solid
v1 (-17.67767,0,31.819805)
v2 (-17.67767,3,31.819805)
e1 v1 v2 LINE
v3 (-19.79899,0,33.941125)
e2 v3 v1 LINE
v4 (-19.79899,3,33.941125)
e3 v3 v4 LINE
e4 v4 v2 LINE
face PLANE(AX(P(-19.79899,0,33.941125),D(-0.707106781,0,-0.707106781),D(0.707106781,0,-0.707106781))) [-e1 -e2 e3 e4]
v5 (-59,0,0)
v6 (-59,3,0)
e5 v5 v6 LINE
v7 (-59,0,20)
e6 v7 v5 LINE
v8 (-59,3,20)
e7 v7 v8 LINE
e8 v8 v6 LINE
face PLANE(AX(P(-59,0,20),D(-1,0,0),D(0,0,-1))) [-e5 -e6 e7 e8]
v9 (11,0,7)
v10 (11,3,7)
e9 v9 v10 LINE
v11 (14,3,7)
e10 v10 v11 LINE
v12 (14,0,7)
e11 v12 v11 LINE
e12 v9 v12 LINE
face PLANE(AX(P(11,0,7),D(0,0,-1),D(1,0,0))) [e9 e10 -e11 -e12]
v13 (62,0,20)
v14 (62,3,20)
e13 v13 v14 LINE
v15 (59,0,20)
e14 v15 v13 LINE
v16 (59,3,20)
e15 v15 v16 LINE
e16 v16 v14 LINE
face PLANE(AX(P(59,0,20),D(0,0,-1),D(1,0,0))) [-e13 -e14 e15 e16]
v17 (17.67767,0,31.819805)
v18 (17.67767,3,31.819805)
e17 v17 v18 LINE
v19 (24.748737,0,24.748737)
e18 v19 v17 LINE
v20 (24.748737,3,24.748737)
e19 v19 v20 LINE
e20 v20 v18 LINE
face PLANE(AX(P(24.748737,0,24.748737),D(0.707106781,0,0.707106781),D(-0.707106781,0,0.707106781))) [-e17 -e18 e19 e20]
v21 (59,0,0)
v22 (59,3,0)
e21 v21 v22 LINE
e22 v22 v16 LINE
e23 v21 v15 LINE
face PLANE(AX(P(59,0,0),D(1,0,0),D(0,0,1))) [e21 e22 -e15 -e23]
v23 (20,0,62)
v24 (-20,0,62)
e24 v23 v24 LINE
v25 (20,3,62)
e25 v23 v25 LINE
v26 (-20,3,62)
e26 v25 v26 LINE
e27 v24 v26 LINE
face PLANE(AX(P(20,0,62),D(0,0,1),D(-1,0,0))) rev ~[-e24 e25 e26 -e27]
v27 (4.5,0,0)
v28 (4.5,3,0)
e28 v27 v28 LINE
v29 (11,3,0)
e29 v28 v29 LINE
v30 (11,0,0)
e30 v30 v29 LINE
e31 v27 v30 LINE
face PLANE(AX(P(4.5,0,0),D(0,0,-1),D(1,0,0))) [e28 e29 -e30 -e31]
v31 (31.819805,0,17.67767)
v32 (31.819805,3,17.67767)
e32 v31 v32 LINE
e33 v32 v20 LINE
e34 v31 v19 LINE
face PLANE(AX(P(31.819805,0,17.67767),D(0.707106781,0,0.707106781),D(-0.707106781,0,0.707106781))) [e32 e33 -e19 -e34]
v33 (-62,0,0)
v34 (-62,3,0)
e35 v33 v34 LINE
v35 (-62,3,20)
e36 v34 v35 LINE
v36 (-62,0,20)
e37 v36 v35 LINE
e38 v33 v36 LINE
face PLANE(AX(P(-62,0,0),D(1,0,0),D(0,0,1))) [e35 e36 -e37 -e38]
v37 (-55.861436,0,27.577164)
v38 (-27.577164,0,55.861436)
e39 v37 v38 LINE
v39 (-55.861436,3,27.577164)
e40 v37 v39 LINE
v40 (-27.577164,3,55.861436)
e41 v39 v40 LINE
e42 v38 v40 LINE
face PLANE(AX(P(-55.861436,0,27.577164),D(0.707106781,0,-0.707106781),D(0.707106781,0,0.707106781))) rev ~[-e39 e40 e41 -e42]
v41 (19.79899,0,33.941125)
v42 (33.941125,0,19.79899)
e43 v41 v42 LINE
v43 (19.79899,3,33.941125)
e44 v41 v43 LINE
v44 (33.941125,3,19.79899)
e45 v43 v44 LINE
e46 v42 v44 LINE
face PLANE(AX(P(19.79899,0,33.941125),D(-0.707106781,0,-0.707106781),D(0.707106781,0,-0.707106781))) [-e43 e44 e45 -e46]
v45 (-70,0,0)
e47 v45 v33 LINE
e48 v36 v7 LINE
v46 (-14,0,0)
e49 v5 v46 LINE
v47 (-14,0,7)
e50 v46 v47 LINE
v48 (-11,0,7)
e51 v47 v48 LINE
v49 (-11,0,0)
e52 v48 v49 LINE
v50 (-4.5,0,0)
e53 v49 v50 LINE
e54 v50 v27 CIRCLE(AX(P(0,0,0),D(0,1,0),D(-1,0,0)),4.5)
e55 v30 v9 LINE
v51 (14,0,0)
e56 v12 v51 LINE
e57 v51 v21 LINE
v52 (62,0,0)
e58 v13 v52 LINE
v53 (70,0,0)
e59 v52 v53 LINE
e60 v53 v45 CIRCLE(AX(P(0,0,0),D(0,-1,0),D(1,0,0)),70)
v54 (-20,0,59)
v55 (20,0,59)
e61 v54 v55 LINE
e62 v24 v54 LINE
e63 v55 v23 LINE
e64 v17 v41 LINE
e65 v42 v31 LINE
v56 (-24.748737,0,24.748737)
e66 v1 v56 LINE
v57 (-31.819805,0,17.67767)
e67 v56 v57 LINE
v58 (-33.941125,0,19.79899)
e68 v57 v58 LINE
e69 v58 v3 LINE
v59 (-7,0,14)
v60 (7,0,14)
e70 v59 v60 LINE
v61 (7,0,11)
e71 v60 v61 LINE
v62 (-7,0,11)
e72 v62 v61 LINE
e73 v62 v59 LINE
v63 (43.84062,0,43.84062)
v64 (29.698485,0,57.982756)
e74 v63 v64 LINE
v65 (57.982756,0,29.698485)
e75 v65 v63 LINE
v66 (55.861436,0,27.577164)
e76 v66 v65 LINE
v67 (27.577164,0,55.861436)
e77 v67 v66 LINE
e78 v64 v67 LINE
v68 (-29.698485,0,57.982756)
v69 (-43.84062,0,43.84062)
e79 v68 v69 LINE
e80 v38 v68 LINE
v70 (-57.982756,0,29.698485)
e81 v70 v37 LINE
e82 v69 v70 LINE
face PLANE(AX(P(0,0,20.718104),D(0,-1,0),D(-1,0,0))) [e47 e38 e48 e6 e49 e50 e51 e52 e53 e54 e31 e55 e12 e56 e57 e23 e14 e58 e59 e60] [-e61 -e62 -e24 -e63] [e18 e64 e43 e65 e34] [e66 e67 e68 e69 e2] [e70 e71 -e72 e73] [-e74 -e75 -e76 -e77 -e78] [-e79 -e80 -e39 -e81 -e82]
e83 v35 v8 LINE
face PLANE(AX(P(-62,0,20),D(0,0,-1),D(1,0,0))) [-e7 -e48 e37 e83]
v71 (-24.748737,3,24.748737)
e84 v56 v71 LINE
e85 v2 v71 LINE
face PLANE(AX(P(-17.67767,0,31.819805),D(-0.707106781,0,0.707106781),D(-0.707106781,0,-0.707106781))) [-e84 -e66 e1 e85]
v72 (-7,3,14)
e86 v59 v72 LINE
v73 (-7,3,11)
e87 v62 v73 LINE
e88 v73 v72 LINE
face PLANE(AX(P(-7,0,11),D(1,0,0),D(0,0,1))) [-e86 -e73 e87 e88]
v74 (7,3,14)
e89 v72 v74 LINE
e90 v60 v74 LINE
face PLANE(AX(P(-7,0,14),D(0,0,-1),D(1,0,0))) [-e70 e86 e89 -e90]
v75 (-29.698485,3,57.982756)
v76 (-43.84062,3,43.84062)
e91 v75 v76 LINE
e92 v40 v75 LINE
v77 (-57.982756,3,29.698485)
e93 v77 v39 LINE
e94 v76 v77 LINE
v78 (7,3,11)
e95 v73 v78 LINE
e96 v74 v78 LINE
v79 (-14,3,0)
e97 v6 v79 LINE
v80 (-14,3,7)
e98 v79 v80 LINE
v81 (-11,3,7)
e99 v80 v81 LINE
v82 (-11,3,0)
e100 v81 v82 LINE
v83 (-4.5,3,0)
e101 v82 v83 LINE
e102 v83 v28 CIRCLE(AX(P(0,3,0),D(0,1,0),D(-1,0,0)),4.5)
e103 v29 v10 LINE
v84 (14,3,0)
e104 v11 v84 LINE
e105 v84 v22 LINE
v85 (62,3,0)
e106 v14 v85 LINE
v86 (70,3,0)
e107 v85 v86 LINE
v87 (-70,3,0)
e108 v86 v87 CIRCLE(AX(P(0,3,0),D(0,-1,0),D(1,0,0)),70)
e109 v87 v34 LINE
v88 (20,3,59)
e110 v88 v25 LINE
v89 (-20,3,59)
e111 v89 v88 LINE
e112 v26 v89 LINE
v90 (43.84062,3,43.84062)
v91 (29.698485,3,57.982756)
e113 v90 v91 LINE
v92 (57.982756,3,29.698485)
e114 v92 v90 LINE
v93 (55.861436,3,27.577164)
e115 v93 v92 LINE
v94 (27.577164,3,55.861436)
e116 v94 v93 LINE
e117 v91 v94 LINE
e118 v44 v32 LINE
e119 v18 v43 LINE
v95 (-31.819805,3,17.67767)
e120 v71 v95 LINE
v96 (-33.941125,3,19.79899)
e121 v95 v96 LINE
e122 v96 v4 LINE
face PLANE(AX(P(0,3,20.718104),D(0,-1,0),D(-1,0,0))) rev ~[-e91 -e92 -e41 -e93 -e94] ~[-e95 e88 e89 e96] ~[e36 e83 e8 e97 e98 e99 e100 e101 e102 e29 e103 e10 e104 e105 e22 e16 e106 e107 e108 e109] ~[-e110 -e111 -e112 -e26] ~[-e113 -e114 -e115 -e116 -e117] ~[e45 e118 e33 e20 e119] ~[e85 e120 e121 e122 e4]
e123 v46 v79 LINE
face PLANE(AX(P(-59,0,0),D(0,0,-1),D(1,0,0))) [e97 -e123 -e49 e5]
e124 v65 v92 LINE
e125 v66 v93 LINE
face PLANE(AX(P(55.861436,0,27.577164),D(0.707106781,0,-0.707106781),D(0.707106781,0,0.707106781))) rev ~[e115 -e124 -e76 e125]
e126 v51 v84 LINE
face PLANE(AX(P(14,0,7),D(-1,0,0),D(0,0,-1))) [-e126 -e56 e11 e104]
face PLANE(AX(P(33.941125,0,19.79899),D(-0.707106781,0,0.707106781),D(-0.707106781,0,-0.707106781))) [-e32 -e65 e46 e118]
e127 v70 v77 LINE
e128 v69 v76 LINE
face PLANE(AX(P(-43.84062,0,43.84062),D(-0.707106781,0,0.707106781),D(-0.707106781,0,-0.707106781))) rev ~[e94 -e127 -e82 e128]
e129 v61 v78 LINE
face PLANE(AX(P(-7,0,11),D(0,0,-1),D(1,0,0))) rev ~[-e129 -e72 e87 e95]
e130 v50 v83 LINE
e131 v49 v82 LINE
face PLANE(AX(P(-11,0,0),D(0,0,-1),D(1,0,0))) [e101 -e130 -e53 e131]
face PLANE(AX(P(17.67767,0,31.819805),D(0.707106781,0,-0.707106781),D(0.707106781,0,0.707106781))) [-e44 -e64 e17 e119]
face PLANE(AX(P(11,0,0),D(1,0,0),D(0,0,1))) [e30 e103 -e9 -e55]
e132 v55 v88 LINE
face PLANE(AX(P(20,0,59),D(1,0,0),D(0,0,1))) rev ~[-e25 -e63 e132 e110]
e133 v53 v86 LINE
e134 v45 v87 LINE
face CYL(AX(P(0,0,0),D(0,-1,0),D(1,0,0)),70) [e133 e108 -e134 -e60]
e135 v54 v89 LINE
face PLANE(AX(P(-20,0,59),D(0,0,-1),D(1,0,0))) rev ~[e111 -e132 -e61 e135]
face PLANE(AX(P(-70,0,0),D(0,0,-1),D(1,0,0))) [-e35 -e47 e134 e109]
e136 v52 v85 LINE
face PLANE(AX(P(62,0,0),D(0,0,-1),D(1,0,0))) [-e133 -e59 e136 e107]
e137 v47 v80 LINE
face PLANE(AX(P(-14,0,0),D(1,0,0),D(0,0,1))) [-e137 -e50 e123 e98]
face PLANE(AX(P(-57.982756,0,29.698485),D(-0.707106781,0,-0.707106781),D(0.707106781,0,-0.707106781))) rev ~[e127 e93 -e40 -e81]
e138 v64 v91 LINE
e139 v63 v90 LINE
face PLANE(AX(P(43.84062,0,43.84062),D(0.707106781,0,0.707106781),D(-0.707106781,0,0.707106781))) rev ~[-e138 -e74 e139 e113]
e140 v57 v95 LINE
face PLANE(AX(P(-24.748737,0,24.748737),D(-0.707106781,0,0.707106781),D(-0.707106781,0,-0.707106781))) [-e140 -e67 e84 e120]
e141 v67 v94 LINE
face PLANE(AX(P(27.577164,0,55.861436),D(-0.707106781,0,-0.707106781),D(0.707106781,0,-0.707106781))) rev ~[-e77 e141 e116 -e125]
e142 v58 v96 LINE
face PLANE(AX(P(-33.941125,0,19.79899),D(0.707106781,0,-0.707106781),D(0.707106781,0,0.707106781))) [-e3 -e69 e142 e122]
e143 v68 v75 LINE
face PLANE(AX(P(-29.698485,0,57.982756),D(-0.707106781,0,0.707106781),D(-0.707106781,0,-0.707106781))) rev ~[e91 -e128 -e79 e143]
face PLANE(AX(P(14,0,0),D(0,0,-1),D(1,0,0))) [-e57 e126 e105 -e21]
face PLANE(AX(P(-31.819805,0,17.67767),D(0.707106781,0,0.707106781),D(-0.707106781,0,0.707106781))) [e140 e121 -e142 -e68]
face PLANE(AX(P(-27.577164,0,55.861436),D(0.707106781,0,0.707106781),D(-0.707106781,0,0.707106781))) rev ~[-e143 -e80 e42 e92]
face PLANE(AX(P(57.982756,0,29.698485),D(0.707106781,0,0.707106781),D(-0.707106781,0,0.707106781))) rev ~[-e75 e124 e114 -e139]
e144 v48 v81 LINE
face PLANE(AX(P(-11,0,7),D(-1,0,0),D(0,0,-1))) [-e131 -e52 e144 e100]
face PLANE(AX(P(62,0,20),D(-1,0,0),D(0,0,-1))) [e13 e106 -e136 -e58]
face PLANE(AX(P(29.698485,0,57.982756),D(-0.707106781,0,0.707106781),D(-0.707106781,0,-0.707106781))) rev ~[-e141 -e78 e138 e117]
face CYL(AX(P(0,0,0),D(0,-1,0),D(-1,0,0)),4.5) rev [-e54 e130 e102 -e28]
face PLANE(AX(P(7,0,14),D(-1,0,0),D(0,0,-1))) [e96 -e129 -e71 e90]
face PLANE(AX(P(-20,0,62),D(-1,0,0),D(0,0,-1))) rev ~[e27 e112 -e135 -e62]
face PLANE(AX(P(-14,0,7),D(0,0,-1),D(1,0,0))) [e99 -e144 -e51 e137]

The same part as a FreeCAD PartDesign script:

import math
import FreeCAD as App
import Part
import Sketcher

V = App.Vector

doc = App.newDocument("Part")
params = doc.addObject("Spreadsheet::Sheet", "Params")
for row, (alias, value) in enumerate([
    ("sketch1_radius", "70 mm"),
    ("sketch1_radius2", "4.5 mm"),
    ("sketch1_width", "45 mm"),
    ("sketch1_width2", "3 mm"),
    ("sketch1_width3", "8 mm"),
    ("pad1_length", "3 mm"),
], start=1):
    params.set(f"A{row}", alias)
    params.set(f"B{row}", "=" + value)
    params.setAlias(f"B{row}", alias)

body = doc.addObject("PartDesign::Body", "Body")

sketch1 = body.newObject("Sketcher::SketchObject", "Sketch")
sketch1.AttachmentSupport = (doc.getObject("XZ_Plane"), [""])
sketch1.MapMode = "FlatFace"
sketch1.addGeometry([
    Part.LineSegment(V(-14, 0, 0), V(-59, 0, 0)),
    Part.LineSegment(V(-59, 0, 0), V(-59, 20, 0)),
    Part.LineSegment(V(-59, 20, 0), V(-62, 20, 0)),
    Part.LineSegment(V(-62, 20, 0), V(-62, 0, 0)),
    Part.LineSegment(V(-62, 0, 0), V(-70, 0, 0)),
    Part.ArcOfCircle(Part.Circle(V(0, 0, 0), V(0, 0, 1), 70), math.radians(0), math.radians(180)),
    Part.LineSegment(V(70, 0, 0), V(62, 0, 0)),
    Part.LineSegment(V(62, 0, 0), V(62, 20, 0)),
    Part.LineSegment(V(62, 20, 0), V(59, 20, 0)),
    Part.LineSegment(V(59, 20, 0), V(59, 0, 0)),
    Part.LineSegment(V(59, 0, 0), V(14, 0, 0)),
    Part.LineSegment(V(14, 0, 0), V(14, 7, 0)),
    Part.LineSegment(V(14, 7, 0), V(11, 7, 0)),
    Part.LineSegment(V(11, 7, 0), V(11, 0, 0)),
    Part.LineSegment(V(11, 0, 0), V(4.5, 0, 0)),
    Part.ArcOfCircle(Part.Circle(V(0, 0, 0), V(0, 0, 1), 4.5), math.radians(0), math.radians(180)),
    Part.LineSegment(V(-4.5, 0, 0), V(-11, 0, 0)),
    Part.LineSegment(V(-11, 0, 0), V(-11, 7, 0)),
    Part.LineSegment(V(-11, 7, 0), V(-14, 7, 0)),
    Part.LineSegment(V(-14, 7, 0), V(-14, 0, 0)),
    Part.LineSegment(V(27.6, 55.9, 0), V(55.9, 27.6, 0)),
    Part.LineSegment(V(55.9, 27.6, 0), V(58, 29.7, 0)),
    Part.LineSegment(V(58, 29.7, 0), V(43.8, 43.8, 0)),
    Part.LineSegment(V(43.8, 43.8, 0), V(29.7, 58, 0)),
    Part.LineSegment(V(29.7, 58, 0), V(27.6, 55.9, 0)),
    Part.LineSegment(V(-20, 59, 0), V(20, 59, 0)),
    Part.LineSegment(V(20, 59, 0), V(20, 62, 0)),
    Part.LineSegment(V(20, 62, 0), V(-20, 62, 0)),
    Part.LineSegment(V(-20, 62, 0), V(-20, 59, 0)),
    Part.LineSegment(V(-55.9, 27.6, 0), V(-27.6, 55.9, 0)),
    Part.LineSegment(V(-27.6, 55.9, 0), V(-29.7, 58, 0)),
    Part.LineSegment(V(-29.7, 58, 0), V(-43.8, 43.8, 0)),
    Part.LineSegment(V(-43.8, 43.8, 0), V(-58, 29.7, 0)),
    Part.LineSegment(V(-58, 29.7, 0), V(-55.9, 27.6, 0)),
    Part.LineSegment(V(24.7, 24.7, 0), V(31.8, 17.7, 0)),
    Part.LineSegment(V(31.8, 17.7, 0), V(33.9, 19.8, 0)),
    Part.LineSegment(V(33.9, 19.8, 0), V(19.8, 33.9, 0)),
    Part.LineSegment(V(19.8, 33.9, 0), V(17.7, 31.8, 0)),
    Part.LineSegment(V(17.7, 31.8, 0), V(24.7, 24.7, 0)),
    Part.LineSegment(V(-24.7, 24.7, 0), V(-17.7, 31.8, 0)),
    Part.LineSegment(V(-17.7, 31.8, 0), V(-19.8, 33.9, 0)),
    Part.LineSegment(V(-19.8, 33.9, 0), V(-33.9, 19.8, 0)),
    Part.LineSegment(V(-33.9, 19.8, 0), V(-31.8, 17.7, 0)),
    Part.LineSegment(V(-31.8, 17.7, 0), V(-24.7, 24.7, 0)),
    Part.LineSegment(V(-7, 14, 0), V(-7, 11, 0)),
    Part.LineSegment(V(-7, 11, 0), V(7, 11, 0)),
    Part.LineSegment(V(7, 11, 0), V(7, 14, 0)),
    Part.LineSegment(V(7, 14, 0), V(-7, 14, 0)),
], False)
sketch1.addConstraint([
    Sketcher.Constraint("Coincident", 0, 2, 1, 1),
    Sketcher.Constraint("Coincident", 1, 2, 2, 1),
    Sketcher.Constraint("Coincident", 2, 2, 3, 1),
    Sketcher.Constraint("Coincident", 3, 2, 4, 1),
    Sketcher.Constraint("Coincident", 4, 2, 5, 2),
    Sketcher.Constraint("Coincident", 5, 1, 6, 1),
    Sketcher.Constraint("Coincident", 6, 2, 7, 1),
    Sketcher.Constraint("Coincident", 7, 2, 8, 1),
    Sketcher.Constraint("Coincident", 8, 2, 9, 1),
    Sketcher.Constraint("Coincident", 9, 2, 10, 1),
    Sketcher.Constraint("Coincident", 10, 2, 11, 1),
    Sketcher.Constraint("Coincident", 11, 2, 12, 1),
    Sketcher.Constraint("Coincident", 12, 2, 13, 1),
    Sketcher.Constraint("Coincident", 13, 2, 14, 1),
    Sketcher.Constraint("Coincident", 14, 2, 15, 1),
    Sketcher.Constraint("Coincident", 15, 2, 16, 1),
    Sketcher.Constraint("Coincident", 16, 2, 17, 1),
    Sketcher.Constraint("Coincident", 17, 2, 18, 1),
    Sketcher.Constraint("Coincident", 18, 2, 19, 1),
    Sketcher.Constraint("Coincident", 19, 2, 0, 1),
    Sketcher.Constraint("Coincident", 20, 2, 21, 1),
    Sketcher.Constraint("Coincident", 21, 2, 22, 1),
    Sketcher.Constraint("Coincident", 22, 2, 23, 1),
    Sketcher.Constraint("Coincident", 23, 2, 24, 1),
    Sketcher.Constraint("Coincident", 24, 2, 20, 1),
    Sketcher.Constraint("Coincident", 25, 2, 26, 1),
    Sketcher.Constraint("Coincident", 26, 2, 27, 1),
    Sketcher.Constraint("Coincident", 27, 2, 28, 1),
    Sketcher.Constraint("Coincident", 28, 2, 25, 1),
    Sketcher.Constraint("Coincident", 29, 2, 30, 1),
    Sketcher.Constraint("Coincident", 30, 2, 31, 1),
    Sketcher.Constraint("Coincident", 31, 2, 32, 1),
    Sketcher.Constraint("Coincident", 32, 2, 33, 1),
    Sketcher.Constraint("Coincident", 33, 2, 29, 1),
    Sketcher.Constraint("Coincident", 34, 2, 35, 1),
    Sketcher.Constraint("Coincident", 35, 2, 36, 1),
    Sketcher.Constraint("Coincident", 36, 2, 37, 1),
    Sketcher.Constraint("Coincident", 37, 2, 38, 1),
    Sketcher.Constraint("Coincident", 38, 2, 34, 1),
    Sketcher.Constraint("Coincident", 39, 2, 40, 1),
    Sketcher.Constraint("Coincident", 40, 2, 41, 1),
    Sketcher.Constraint("Coincident", 41, 2, 42, 1),
    Sketcher.Constraint("Coincident", 42, 2, 43, 1),
    Sketcher.Constraint("Coincident", 43, 2, 39, 1),
    Sketcher.Constraint("Coincident", 44, 2, 45, 1),
    Sketcher.Constraint("Coincident", 45, 2, 46, 1),
    Sketcher.Constraint("Coincident", 46, 2, 47, 1),
    Sketcher.Constraint("Coincident", 47, 2, 44, 1),
    Sketcher.Constraint("Horizontal", 0),
    Sketcher.Constraint("Vertical", 1),
    Sketcher.Constraint("Horizontal", 2),
    Sketcher.Constraint("Vertical", 3),
    Sketcher.Constraint("Horizontal", 4),
    Sketcher.Constraint("Horizontal", 6),
    Sketcher.Constraint("Vertical", 7),
    Sketcher.Constraint("Horizontal", 8),
    Sketcher.Constraint("Vertical", 9),
    Sketcher.Constraint("Horizontal", 10),
    Sketcher.Constraint("Vertical", 11),
    Sketcher.Constraint("Horizontal", 12),
    Sketcher.Constraint("Vertical", 13),
    Sketcher.Constraint("Horizontal", 14),
    Sketcher.Constraint("Horizontal", 16),
    Sketcher.Constraint("Vertical", 17),
    Sketcher.Constraint("Horizontal", 18),
    Sketcher.Constraint("Vertical", 19),
    Sketcher.Constraint("Horizontal", 25),
    Sketcher.Constraint("Vertical", 26),
    Sketcher.Constraint("Horizontal", 27),
    Sketcher.Constraint("Vertical", 28),
    Sketcher.Constraint("Vertical", 44),
    Sketcher.Constraint("Horizontal", 45),
    Sketcher.Constraint("Vertical", 46),
    Sketcher.Constraint("Horizontal", 47),
    Sketcher.Constraint("Coincident", 5, 3, -1, 1),
    Sketcher.Constraint("Coincident", 15, 3, -1, 1),
    Sketcher.Constraint("Symmetric", 3, 2, 6, 2, -1, 1),
    Sketcher.Constraint("Symmetric", 0, 2, 9, 2, -1, 1),
    Sketcher.Constraint("Symmetric", 13, 2, 16, 2, -1, 1),
    Sketcher.Constraint("Symmetric", 11, 2, 18, 2, -2),
    Sketcher.Constraint("Symmetric", 24, 2, 29, 2, -2),
    Sketcher.Constraint("Symmetric", 23, 2, 30, 2, -2),
    Sketcher.Constraint("Symmetric", 22, 2, 31, 2, -2),
    Sketcher.Constraint("Symmetric", 21, 2, 32, 2, -2),
    Sketcher.Constraint("Symmetric", 20, 2, 33, 2, -2),
    Sketcher.Constraint("Symmetric", 37, 2, 39, 2, -2),
    Sketcher.Constraint("Symmetric", 36, 2, 40, 2, -2),
    Sketcher.Constraint("Symmetric", 35, 2, 41, 2, -2),
    Sketcher.Constraint("Symmetric", 34, 2, 42, 2, -2),
    Sketcher.Constraint("Symmetric", 38, 2, 43, 2, -2),
    Sketcher.Constraint("PointOnObject", 0, 2, -1),
    Sketcher.Constraint("PointOnObject", 3, 2, -1),
    Sketcher.Constraint("PointOnObject", 13, 2, -1),
    Sketcher.Constraint("Perpendicular", 20, 21),
    Sketcher.Constraint("Perpendicular", 21, 22),
    Sketcher.Constraint("Parallel", 22, 23),
    Sketcher.Constraint("Perpendicular", 23, 24),
    Sketcher.Constraint("Parallel", 24, 29),
    Sketcher.Constraint("Parallel", 33, 34),
    Sketcher.Constraint("Perpendicular", 34, 35),
    Sketcher.Constraint("Perpendicular", 35, 36),
    Sketcher.Constraint("Perpendicular", 36, 37),
    Sketcher.Constraint("Perpendicular", 37, 38),
    Sketcher.Constraint("Horizontal", 2, 2, 7, 2),
    Sketcher.Constraint("Equal", 8, 12),
    Sketcher.Constraint("Equal", 18, 26),
    Sketcher.Constraint("Equal", 28, 44),
    Sketcher.Constraint("Equal", 22, 23),
    Sketcher.Constraint("Equal", 33, 35),
    Sketcher.Constraint("Equal", 32, 36),
    Sketcher.Constraint("Equal", 34, 38),
    Sketcher.Constraint("Radius", 5, 70.0),
    Sketcher.Constraint("Radius", 15, 4.5),
    Sketcher.Constraint("DistanceX", 0, 2, 0, 1, 45.0),
    Sketcher.Constraint("DistanceX", 2, 2, 2, 1, 3.0),
    Sketcher.Constraint("DistanceX", 4, 2, 4, 1, 8.0),
    Sketcher.Constraint("DistanceX", 25, 1, 25, 2, 40.0),
    Sketcher.Constraint("DistanceX", 45, 1, 45, 2, 14.0),
    Sketcher.Constraint("DistanceY", 1, 1, 1, 2, 20.0),
    Sketcher.Constraint("DistanceY", 11, 1, 11, 2, 7.0),
    Sketcher.Constraint("Distance", 20, 40.0),
    Sketcher.Constraint("Distance", 21, 3.0),
    Sketcher.Constraint("DistanceX", -1, 1, 25, 2, 20.0),
    Sketcher.Constraint("DistanceY", -1, 1, 25, 2, 59.0),
    Sketcher.Constraint("DistanceX", 44, 2, -1, 1, 7.0),
    Sketcher.Constraint("DistanceY", -1, 1, 44, 2, 11.0),
    Sketcher.Constraint("DistanceX", -1, 1, 22, 2, 43.84062),
    Sketcher.Constraint("DistanceY", -1, 1, 22, 2, 43.84062),
    Sketcher.Constraint("DistanceY", -1, 1, 34, 2, 17.67767),
    Sketcher.Constraint("DistanceX", -1, 1, 36, 2, 19.79899),
])
sketch1.setExpression("Constraints[111]", "Params.sketch1_radius")
sketch1.setExpression("Constraints[112]", "Params.sketch1_radius2")
sketch1.setExpression("Constraints[113]", "Params.sketch1_width")
sketch1.setExpression("Constraints[114]", "Params.sketch1_width2")
sketch1.setExpression("Constraints[115]", "Params.sketch1_width3")
pad1 = body.newObject("PartDesign::Pad", "Pad")
pad1.Profile = sketch1
pad1.setExpression("Length", "Params.pad1_length")
pad1.Reversed = True

doc.recompute()
